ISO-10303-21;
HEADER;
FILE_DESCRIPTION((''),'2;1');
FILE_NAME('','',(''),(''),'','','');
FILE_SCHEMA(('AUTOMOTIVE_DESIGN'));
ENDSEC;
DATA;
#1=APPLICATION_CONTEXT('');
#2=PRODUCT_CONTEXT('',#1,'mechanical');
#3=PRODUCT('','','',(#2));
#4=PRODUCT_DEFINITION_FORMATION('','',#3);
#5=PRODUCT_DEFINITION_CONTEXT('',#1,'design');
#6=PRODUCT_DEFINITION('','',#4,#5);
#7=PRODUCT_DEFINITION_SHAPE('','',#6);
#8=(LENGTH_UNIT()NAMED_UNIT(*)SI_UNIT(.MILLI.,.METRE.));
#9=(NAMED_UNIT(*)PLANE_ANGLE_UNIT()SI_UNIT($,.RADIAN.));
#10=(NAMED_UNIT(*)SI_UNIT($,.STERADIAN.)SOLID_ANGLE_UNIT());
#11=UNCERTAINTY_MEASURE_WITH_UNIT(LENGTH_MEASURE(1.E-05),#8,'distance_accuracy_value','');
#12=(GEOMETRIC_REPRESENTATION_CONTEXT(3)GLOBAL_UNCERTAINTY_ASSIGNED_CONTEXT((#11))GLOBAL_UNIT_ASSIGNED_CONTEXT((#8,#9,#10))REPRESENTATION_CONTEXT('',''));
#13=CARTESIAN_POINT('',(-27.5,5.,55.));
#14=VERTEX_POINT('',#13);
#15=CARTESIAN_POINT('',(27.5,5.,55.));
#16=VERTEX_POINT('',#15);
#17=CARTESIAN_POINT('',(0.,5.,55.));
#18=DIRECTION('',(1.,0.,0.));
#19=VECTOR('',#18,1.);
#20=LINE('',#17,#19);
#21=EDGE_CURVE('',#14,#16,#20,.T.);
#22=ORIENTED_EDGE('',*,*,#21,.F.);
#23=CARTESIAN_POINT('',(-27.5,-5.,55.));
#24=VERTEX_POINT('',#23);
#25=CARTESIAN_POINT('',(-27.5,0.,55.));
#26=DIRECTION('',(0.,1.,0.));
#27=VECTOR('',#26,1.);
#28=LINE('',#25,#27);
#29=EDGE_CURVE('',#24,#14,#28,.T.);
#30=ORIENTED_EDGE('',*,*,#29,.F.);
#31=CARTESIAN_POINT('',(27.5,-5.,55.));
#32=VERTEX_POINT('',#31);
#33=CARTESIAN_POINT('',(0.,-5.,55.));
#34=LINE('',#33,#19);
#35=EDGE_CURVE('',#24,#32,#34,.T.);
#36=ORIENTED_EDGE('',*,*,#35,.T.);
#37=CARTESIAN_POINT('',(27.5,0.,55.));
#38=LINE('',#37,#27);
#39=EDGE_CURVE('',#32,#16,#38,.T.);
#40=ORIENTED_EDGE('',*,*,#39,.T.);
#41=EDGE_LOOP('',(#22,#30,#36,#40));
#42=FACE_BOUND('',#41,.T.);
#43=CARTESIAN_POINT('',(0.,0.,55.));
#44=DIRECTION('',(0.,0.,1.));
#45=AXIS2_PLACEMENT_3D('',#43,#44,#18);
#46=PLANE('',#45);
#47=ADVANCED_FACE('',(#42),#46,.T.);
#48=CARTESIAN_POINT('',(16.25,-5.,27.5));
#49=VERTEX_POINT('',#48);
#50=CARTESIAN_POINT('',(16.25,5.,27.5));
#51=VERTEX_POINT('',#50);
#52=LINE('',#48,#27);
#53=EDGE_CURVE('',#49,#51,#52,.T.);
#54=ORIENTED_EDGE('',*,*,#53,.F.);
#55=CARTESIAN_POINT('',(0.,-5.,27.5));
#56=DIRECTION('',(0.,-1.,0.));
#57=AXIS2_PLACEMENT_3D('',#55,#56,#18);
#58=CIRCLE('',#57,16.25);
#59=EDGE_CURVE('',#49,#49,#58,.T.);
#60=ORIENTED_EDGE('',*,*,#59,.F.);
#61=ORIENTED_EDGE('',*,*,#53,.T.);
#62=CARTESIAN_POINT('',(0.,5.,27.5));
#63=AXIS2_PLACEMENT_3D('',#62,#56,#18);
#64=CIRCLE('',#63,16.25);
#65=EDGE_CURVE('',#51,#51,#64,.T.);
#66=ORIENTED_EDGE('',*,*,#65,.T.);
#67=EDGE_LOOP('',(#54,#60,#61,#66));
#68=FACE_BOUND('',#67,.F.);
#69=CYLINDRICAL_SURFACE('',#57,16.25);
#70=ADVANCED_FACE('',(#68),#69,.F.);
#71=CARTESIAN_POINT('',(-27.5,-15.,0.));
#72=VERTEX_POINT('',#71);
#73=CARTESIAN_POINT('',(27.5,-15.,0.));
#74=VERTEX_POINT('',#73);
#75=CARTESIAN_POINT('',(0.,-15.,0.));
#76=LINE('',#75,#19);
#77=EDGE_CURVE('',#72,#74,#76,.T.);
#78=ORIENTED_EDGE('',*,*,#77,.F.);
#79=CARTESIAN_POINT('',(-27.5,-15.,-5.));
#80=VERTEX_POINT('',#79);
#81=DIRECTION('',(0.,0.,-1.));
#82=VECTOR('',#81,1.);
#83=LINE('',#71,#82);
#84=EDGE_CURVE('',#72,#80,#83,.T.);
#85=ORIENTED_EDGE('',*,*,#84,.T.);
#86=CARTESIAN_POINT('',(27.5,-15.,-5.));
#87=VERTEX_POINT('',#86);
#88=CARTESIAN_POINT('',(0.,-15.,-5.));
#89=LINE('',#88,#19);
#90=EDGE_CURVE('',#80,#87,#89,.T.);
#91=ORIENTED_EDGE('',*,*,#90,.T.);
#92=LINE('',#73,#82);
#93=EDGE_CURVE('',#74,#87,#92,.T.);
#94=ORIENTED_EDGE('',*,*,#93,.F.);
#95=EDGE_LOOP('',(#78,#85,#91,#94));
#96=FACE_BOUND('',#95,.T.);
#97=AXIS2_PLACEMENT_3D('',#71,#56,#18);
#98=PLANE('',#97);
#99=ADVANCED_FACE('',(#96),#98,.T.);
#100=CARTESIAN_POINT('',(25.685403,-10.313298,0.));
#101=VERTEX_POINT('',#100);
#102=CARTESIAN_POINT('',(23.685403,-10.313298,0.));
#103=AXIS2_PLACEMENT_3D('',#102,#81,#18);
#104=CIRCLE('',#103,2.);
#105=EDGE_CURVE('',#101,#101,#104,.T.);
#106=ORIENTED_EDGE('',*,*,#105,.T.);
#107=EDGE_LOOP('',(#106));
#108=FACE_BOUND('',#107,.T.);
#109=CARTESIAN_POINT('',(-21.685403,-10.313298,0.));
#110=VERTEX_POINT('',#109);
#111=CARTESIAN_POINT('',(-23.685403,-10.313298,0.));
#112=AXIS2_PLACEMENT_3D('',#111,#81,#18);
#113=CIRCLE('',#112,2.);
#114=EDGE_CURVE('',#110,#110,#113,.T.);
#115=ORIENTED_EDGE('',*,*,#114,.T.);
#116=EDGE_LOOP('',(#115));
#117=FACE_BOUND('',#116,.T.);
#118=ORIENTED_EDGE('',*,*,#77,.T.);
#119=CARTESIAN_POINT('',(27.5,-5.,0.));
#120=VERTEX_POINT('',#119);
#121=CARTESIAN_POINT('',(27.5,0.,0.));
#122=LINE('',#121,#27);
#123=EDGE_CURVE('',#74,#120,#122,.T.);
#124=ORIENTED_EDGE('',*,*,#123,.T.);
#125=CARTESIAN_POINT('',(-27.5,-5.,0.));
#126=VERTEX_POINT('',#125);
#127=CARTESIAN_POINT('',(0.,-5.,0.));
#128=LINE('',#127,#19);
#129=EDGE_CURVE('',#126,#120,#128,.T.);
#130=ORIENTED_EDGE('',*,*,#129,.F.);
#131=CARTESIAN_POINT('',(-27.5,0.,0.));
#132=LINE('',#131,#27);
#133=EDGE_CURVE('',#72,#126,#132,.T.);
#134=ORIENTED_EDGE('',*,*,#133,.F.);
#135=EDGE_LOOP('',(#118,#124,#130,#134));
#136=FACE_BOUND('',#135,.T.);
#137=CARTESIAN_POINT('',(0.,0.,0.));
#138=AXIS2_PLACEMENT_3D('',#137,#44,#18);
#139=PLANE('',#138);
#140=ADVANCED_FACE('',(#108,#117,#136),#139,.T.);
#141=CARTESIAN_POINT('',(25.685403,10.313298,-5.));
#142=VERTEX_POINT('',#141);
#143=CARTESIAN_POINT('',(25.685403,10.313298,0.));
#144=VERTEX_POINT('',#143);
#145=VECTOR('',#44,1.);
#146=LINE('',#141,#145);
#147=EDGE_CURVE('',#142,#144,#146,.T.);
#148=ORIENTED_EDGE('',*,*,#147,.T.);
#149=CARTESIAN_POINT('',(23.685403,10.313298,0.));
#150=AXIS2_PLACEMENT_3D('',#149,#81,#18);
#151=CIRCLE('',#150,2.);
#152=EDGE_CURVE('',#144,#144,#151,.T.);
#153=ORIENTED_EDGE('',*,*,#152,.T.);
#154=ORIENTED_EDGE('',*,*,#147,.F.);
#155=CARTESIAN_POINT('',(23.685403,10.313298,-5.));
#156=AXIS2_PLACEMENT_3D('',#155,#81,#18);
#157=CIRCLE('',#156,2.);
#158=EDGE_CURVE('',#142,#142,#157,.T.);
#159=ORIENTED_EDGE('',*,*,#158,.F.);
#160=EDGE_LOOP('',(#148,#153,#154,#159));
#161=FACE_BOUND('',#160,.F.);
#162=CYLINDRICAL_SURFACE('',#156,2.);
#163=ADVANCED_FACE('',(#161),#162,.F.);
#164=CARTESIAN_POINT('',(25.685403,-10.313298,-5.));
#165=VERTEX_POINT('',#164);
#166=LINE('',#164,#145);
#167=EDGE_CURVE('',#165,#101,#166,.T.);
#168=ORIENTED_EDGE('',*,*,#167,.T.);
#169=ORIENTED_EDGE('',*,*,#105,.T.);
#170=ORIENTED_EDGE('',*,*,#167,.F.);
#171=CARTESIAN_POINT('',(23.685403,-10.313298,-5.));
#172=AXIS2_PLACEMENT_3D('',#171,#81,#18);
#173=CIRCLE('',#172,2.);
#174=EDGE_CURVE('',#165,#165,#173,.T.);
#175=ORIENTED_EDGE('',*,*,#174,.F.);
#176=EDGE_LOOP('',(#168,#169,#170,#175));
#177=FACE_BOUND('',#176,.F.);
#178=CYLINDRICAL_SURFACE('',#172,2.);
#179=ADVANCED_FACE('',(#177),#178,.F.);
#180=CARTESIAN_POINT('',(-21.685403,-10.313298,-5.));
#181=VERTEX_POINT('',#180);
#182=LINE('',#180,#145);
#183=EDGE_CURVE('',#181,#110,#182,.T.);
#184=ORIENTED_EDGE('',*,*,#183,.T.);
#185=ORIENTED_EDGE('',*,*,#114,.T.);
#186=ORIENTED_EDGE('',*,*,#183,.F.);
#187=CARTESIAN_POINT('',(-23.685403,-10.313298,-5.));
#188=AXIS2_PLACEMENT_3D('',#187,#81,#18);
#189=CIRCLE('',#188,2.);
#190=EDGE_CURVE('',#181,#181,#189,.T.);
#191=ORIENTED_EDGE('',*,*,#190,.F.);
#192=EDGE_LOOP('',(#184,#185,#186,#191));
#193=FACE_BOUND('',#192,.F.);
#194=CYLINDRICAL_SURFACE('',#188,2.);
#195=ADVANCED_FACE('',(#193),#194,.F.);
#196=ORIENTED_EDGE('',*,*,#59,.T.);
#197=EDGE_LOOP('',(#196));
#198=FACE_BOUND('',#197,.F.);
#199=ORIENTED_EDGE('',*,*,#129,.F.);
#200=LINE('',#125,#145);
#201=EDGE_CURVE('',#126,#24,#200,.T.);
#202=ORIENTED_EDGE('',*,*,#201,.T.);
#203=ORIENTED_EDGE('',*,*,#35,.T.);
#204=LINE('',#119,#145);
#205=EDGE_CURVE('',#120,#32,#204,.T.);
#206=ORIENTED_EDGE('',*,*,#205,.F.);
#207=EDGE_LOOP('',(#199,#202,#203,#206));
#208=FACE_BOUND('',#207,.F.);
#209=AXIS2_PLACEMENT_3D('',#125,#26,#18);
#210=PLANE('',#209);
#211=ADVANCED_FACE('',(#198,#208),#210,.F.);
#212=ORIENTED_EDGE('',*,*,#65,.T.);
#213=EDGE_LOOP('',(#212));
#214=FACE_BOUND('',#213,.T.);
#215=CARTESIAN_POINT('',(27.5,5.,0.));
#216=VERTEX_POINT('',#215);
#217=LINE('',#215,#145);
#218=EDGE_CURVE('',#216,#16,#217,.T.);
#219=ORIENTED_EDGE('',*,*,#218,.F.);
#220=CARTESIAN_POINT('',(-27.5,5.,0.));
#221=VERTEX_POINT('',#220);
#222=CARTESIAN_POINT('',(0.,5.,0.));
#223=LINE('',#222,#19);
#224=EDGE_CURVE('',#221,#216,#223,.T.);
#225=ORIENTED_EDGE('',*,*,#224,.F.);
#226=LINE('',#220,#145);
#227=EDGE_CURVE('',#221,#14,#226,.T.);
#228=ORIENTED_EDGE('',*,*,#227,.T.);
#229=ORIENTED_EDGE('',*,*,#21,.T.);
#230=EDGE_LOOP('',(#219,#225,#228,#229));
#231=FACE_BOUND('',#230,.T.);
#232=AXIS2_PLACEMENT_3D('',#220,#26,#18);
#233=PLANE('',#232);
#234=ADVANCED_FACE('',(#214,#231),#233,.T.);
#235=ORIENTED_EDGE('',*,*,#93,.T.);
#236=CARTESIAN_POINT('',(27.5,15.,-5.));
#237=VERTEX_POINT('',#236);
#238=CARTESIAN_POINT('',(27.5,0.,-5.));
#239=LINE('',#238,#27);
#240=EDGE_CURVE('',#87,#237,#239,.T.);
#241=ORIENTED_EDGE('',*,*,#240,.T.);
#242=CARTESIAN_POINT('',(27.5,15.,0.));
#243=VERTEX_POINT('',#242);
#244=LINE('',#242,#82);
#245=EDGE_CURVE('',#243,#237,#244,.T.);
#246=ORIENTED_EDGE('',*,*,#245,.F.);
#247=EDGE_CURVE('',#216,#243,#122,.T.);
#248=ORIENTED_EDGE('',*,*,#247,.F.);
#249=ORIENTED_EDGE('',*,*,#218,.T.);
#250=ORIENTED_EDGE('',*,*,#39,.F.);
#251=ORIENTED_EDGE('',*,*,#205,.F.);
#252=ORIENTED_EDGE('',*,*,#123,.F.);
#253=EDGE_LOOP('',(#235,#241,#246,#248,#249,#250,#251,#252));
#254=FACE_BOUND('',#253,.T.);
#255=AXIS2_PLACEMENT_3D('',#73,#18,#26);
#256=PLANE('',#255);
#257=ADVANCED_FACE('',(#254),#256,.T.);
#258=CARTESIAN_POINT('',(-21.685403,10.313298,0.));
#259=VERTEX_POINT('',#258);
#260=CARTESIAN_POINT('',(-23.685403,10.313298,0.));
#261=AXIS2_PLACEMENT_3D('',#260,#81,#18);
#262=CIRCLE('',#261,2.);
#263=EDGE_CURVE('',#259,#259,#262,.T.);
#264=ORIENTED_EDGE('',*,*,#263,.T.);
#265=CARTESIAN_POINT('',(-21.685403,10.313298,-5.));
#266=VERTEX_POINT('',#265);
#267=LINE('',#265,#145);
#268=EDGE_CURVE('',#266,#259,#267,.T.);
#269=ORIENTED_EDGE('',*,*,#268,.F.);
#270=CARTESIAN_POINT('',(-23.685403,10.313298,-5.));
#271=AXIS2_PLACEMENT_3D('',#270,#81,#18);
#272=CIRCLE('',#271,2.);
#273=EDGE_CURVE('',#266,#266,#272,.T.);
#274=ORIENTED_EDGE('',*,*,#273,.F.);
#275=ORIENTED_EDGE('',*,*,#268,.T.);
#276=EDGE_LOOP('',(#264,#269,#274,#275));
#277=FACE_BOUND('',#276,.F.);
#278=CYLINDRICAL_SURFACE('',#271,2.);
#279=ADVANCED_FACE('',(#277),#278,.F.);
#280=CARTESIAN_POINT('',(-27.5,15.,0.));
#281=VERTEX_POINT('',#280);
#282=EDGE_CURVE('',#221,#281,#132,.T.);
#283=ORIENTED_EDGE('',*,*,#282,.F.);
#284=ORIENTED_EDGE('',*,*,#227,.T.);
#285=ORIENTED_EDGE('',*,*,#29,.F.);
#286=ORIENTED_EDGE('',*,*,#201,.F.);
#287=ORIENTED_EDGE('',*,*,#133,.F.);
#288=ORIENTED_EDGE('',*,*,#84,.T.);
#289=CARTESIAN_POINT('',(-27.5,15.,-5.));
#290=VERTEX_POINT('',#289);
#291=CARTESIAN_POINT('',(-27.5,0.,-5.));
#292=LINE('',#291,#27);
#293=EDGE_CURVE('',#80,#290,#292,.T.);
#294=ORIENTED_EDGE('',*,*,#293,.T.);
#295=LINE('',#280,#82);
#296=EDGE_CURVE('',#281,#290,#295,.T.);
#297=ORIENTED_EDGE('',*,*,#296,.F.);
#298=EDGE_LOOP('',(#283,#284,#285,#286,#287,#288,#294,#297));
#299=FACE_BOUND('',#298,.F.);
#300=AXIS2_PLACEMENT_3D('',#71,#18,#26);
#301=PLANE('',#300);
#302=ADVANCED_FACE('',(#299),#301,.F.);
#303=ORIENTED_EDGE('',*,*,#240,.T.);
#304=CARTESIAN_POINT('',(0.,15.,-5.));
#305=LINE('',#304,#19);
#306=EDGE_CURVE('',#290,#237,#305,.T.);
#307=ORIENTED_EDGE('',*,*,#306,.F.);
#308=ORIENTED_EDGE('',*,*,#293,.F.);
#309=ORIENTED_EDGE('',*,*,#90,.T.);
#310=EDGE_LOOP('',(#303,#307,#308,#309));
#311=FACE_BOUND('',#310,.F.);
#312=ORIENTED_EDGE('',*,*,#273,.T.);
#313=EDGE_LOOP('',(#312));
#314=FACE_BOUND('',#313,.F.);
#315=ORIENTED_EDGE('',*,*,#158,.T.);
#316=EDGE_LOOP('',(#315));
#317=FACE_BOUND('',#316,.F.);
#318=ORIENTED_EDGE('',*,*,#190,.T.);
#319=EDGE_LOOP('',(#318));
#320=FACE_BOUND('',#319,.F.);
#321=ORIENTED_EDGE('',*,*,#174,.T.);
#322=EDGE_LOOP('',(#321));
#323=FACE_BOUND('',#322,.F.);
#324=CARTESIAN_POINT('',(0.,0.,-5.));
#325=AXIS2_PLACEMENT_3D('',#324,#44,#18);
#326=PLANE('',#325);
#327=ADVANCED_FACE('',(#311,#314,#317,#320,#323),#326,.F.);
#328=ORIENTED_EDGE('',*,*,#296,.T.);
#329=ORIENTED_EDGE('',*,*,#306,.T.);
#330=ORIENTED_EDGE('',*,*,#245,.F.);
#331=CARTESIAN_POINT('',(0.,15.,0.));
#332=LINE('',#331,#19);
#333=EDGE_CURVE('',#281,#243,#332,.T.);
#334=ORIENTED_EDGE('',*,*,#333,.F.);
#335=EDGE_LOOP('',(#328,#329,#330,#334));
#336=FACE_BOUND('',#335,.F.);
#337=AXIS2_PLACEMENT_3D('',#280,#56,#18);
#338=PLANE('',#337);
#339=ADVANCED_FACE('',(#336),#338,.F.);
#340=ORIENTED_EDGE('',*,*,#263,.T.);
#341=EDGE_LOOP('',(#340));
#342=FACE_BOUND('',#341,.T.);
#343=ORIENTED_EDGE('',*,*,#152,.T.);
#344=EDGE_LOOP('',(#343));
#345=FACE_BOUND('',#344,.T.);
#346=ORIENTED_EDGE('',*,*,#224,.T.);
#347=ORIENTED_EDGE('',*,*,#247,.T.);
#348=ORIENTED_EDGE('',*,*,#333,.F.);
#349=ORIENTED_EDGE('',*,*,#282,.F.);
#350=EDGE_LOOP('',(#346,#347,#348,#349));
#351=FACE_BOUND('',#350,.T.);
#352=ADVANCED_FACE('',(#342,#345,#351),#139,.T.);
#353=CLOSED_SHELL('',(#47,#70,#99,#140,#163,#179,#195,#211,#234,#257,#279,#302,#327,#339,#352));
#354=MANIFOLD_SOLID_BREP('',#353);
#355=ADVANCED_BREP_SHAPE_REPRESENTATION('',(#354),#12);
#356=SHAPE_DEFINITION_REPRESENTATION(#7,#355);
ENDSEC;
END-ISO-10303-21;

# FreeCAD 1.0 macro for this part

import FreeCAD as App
import Part
import Sketcher

doc = App.newDocument("Part")
params = doc.addObject("Spreadsheet::Sheet", "Params")
for row, (alias, value) in enumerate([
    ("sketch1_width", "55 mm"),
    ("sketch1_height", "10 mm"),
    ("pad1_length", "55 mm"),
    ("sketch2_diameter", "32.5 mm"),
    ("pocket1_length", "25 mm"),
    ("sketch3_width", "55 mm"),
    ("sketch3_height", "30 mm"),
    ("pad2_length", "5 mm"),
    ("sketch4_diameter", "4 mm"),
    ("pocket2_length", "25 mm"),
], start=1):
    params.set(f"A{row}", alias)
    params.set(f"B{row}", "=" + value)
    params.setAlias(f"B{row}", alias)

body = doc.addObject("PartDesign::Body", "Body")

# Sketch on XY plane
sketch1 = body.newObject("Sketcher::SketchObject", "Sketch")
sketch1.AttachmentSupport = (doc.getObject("XY_Plane"), [""])
sketch1.MapMode = "FlatFace"
sketch1.addGeometry(Part.LineSegment(App.Vector(-28, 5, 0), App.Vector(-28, -5, 0)), False)
sketch1.addGeometry(Part.LineSegment(App.Vector(-28, -5, 0), App.Vector(28, -5, 0)), False)
sketch1.addGeometry(Part.LineSegment(App.Vector(28, -5, 0), App.Vector(28, 5, 0)), False)
sketch1.addGeometry(Part.LineSegment(App.Vector(28, 5, 0), App.Vector(-28, 5, 0)), False)
sketch1.addConstraint(Sketcher.Constraint("Coincident", 0, 2, 1, 1))
sketch1.addConstraint(Sketcher.Constraint("Coincident", 1, 2, 2, 1))
sketch1.addConstraint(Sketcher.Constraint("Coincident", 2, 2, 3, 1))
sketch1.addConstraint(Sketcher.Constraint("Coincident", 3, 2, 0, 1))
sketch1.addConstraint(Sketcher.Constraint("Vertical", 0))
sketch1.addConstraint(Sketcher.Constraint("Horizontal", 1))
sketch1.addConstraint(Sketcher.Constraint("Vertical", 2))
sketch1.addConstraint(Sketcher.Constraint("Horizontal", 3))
sketch1.addConstraint(Sketcher.Constraint("Symmetric", 0, 2, 2, 2, -1, 1))
sketch1.addConstraint(Sketcher.Constraint("DistanceX", 1, 1, 1, 2, 55.0))
sketch1.addConstraint(Sketcher.Constraint("DistanceY", 0, 2, 0, 1, 10.0))
sketch1.setExpression("Constraints[9]", "Params.sketch1_width")
sketch1.setExpression("Constraints[10]", "Params.sketch1_height")
pad1 = body.newObject("PartDesign::Pad", "Pad")
pad1.Profile = sketch1
pad1.setExpression("Length", "Params.pad1_length")

# Sketch on XZ plane
sketch2 = body.newObject("Sketcher::SketchObject", "Sketch001")
sketch2.AttachmentSupport = (doc.getObject("XZ_Plane"), [""])
sketch2.MapMode = "FlatFace"
sketch2.AttachmentOffset = App.Placement(App.Vector(0, 0, 5), App.Rotation())
sketch2.addGeometry(Part.Circle(App.Vector(0, 28, 0), App.Vector(0, 0, 1), 16), False)
sketch2.addConstraint(Sketcher.Constraint("PointOnObject", 0, 3, -2))
sketch2.addConstraint(Sketcher.Constraint("Diameter", 0, 32.5))
sketch2.addConstraint(Sketcher.Constraint("DistanceY", -1, 1, 0, 3, 27.5))
sketch2.setExpression("Constraints[1]", "Params.sketch2_diameter")
pocket1 = body.newObject("PartDesign::Pocket", "Pocket")
pocket1.Profile = sketch2
pocket1.setExpression("Length", "Params.pocket1_length")

# Sketch on XY plane
sketch3 = body.newObject("Sketcher::SketchObject", "Sketch002")
sketch3.AttachmentSupport = (doc.getObject("XY_Plane"), [""])
sketch3.MapMode = "FlatFace"
sketch3.addGeometry(Part.LineSegment(App.Vector(-28, 15, 0), App.Vector(-28, -15, 0)), False)
sketch3.addGeometry(Part.LineSegment(App.Vector(-28, -15, 0), App.Vector(28, -15, 0)), False)
sketch3.addGeometry(Part.LineSegment(App.Vector(28, -15, 0), App.Vector(28, 15, 0)), False)
sketch3.addGeometry(Part.LineSegment(App.Vector(28, 15, 0), App.Vector(-28, 15, 0)), False)
sketch3.addConstraint(Sketcher.Constraint("Coincident", 0, 2, 1, 1))
sketch3.addConstraint(Sketcher.Constraint("Coincident", 1, 2, 2, 1))
sketch3.addConstraint(Sketcher.Constraint("Coincident", 2, 2, 3, 1))
sketch3.addConstraint(Sketcher.Constraint("Coincident", 3, 2, 0, 1))
sketch3.addConstraint(Sketcher.Constraint("Vertical", 0))
sketch3.addConstraint(Sketcher.Constraint("Horizontal", 1))
sketch3.addConstraint(Sketcher.Constraint("Vertical", 2))
sketch3.addConstraint(Sketcher.Constraint("Horizontal", 3))
sketch3.addConstraint(Sketcher.Constraint("Symmetric", 0, 2, 2, 2, -1, 1))
sketch3.addConstraint(Sketcher.Constraint("DistanceX", 1, 1, 1, 2, 55.0))
sketch3.addConstraint(Sketcher.Constraint("DistanceY", 0, 2, 0, 1, 30.0))
sketch3.setExpression("Constraints[9]", "Params.sketch3_width")
sketch3.setExpression("Constraints[10]", "Params.sketch3_height")
pad2 = body.newObject("PartDesign::Pad", "Pad001")
pad2.Profile = sketch3
pad2.setExpression("Length", "Params.pad2_length")
pad2.Reversed = True

# Sketch on XY plane
sketch4 = body.newObject("Sketcher::SketchObject", "Sketch003")
sketch4.AttachmentSupport = (doc.getObject("XY_Plane"), [""])
sketch4.MapMode = "FlatFace"
sketch4.AttachmentOffset = App.Placement(App.Vector(0, 0, -5), App.Rotation())
sketch4.addGeometry(Part.Circle(App.Vector(23.7, -10.3, 0), App.Vector(0, 0, 1), 2), False)
sketch4.addGeometry(Part.Circle(App.Vector(-23.7, -10.3, 0), App.Vector(0, 0, 1), 2), False)
sketch4.addGeometry(Part.Circle(App.Vector(-23.7, 10.3, 0), App.Vector(0, 0, 1), 2), False)
sketch4.addGeometry(Part.Circle(App.Vector(23.7, 10.3, 0), App.Vector(0, 0, 1), 2), False)
sketch4.addConstraint(Sketcher.Constraint("Equal", 0, 1))
sketch4.addConstraint(Sketcher.Constraint("Equal", 1, 2))
sketch4.addConstraint(Sketcher.Constraint("Equal", 2, 3))
sketch4.addConstraint(Sketcher.Constraint("Symmetric", 0, 3, 2, 3, -1, 1))
sketch4.addConstraint(Sketcher.Constraint("Symmetric", 1, 3, 3, 3, -1, 1))
sketch4.addConstraint(Sketcher.Constraint("Symmetric", 0, 3, 1, 3, -2))
sketch4.addConstraint(Sketcher.Constraint("Diameter", 0, 4.0))
sketch4.addConstraint(Sketcher.Constraint("DistanceX", -1, 1, 0, 3, 23.685403))
sketch4.addConstraint(Sketcher.Constraint("DistanceY", 0, 3, -1, 1, 10.313298))
sketch4.setExpression("Constraints[6]", "Params.sketch4_diameter")
pocket2 = body.newObject("PartDesign::Pocket", "Pocket001")
pocket2.Profile = sketch4
pocket2.setExpression("Length", "Params.pocket2_length")
pocket2.Reversed = True

doc.recompute()
